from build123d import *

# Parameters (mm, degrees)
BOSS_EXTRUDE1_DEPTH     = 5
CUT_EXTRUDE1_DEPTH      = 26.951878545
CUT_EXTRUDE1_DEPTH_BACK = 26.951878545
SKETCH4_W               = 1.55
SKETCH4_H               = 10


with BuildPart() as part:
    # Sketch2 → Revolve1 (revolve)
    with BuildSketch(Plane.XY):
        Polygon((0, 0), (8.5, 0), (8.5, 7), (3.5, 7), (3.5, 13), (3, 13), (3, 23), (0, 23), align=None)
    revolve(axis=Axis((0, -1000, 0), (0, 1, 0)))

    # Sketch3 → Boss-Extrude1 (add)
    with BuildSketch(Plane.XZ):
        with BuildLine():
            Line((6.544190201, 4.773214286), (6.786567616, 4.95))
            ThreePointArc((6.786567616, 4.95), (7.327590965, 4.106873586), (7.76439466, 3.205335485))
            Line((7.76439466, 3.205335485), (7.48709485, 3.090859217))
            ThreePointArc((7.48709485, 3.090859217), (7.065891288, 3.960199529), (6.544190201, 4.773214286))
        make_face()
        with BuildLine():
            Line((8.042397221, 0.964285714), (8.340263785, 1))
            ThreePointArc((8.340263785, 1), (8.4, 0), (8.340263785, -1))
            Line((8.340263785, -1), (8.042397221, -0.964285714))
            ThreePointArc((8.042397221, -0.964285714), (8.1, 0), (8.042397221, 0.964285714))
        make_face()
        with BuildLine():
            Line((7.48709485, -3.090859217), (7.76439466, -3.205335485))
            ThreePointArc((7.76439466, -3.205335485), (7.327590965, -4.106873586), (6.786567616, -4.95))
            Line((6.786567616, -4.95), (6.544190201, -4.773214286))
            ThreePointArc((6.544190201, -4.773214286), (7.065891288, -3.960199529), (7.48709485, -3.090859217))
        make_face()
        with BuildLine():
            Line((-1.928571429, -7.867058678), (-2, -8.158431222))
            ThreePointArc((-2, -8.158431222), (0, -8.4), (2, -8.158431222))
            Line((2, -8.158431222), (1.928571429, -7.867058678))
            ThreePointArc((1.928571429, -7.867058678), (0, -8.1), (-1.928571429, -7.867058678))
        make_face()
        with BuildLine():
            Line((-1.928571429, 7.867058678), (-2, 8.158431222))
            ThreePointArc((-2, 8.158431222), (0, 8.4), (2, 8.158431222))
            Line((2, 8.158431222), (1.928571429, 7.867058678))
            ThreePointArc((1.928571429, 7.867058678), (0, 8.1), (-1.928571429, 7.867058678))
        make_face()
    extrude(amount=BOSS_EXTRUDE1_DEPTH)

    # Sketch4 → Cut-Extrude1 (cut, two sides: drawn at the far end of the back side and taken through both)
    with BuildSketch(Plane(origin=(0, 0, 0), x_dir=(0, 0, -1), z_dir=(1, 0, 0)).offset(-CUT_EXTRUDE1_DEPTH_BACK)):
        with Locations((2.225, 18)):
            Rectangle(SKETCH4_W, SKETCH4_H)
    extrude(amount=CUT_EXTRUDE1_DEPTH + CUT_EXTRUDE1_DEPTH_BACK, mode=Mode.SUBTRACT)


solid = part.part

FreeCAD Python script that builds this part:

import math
import FreeCAD as App
import Part
import Sketcher
Q = App.Units.Quantity


def add_polygon(sketch, points):
    """Adds a closed chain of lines whose ends are joined by coincident constraints."""
    first, n = sketch.GeometryCount, len(points)
    for a, b in zip(points, points[1:] + points[:1]):
        sketch.addGeometry(Part.LineSegment(App.Vector(*a, 0), App.Vector(*b, 0)), False)
    for i in range(n):
        sketch.addConstraint(Sketcher.Constraint("Coincident", first + i, 2, first + (i + 1) % n, 1))

doc = App.newDocument("Part")
body = doc.addObject("PartDesign::Body", "Body")

# Sketch on XY plane
sketch1 = body.newObject("Sketcher::SketchObject", "Sketch")
sketch1.AttachmentSupport = (doc.getObject("XY_Plane"), [""])
sketch1.MapMode = "FlatFace"
add_polygon(sketch1, [(0, 0), (8.5, 0), (8.5, 7), (3.5, 7), (3.5, 13), (3, 13), (3, 23), (0, 23)])  # lines 0-7
sketch1.addConstraint(Sketcher.Constraint("Horizontal", 0))
sketch1.addConstraint(Sketcher.Constraint("Vertical", 1))
sketch1.addConstraint(Sketcher.Constraint("Horizontal", 2))
sketch1.addConstraint(Sketcher.Constraint("Vertical", 3))
sketch1.addConstraint(Sketcher.Constraint("Horizontal", 4))
sketch1.addConstraint(Sketcher.Constraint("Vertical", 5))
sketch1.addConstraint(Sketcher.Constraint("Horizontal", 6))
sketch1.addConstraint(Sketcher.Constraint("Vertical", 7))
sketch1.addConstraint(Sketcher.Constraint("Coincident", 7, 2, -1, 1))
sketch1.addConstraint(Sketcher.Constraint("DistanceX", 2, 2, 2, 1, Q("5 mm")))
sketch1.addConstraint(Sketcher.Constraint("DistanceX", 6, 2, 6, 1, Q("3 mm")))
sketch1.addConstraint(Sketcher.Constraint("DistanceY", 1, 1, 1, 2, Q("7 mm")))
sketch1.addConstraint(Sketcher.Constraint("DistanceY", 3, 1, 3, 2, Q("6 mm")))
sketch1.addConstraint(Sketcher.Constraint("DistanceY", 5, 1, 5, 2, Q("10 mm")))
sketch1.addConstraint(Sketcher.Constraint("DistanceX", 0, 1, 0, 2, Q("8.5 mm")))
revolution = body.newObject("PartDesign::Revolution", "Revolution")
revolution.Profile = sketch1
revolution.ReferenceAxis = (sketch1, ["V_Axis"])
revolution.Angle = 360

# Sketch on XZ plane
sketch2 = body.newObject("Sketcher::SketchObject", "Sketch001")
sketch2.AttachmentSupport = (doc.getObject("XZ_Plane"), [""])
sketch2.MapMode = "FlatFace"
sketch2.addGeometry(Part.LineSegment(App.Vector(6.786568, 4.95, 0), App.Vector(6.54419, 4.773214, 0)), False)
sketch2.addGeometry(Part.ArcOfCircle(Part.Circle(App.Vector(0, 0, 0), App.Vector(0, 0, 1), 8.1), math.radians(22.432054), math.radians(36.106337)), False)
sketch2.addGeometry(Part.LineSegment(App.Vector(7.487095, 3.090859, 0), App.Vector(7.764395, 3.205335, 0)), False)
sketch2.addGeometry(Part.ArcOfCircle(Part.Circle(App.Vector(0, 0, 0), App.Vector(0, 0, 1), 8.4), math.radians(22.432054), math.radians(36.106337)), False)
sketch2.addGeometry(Part.LineSegment(App.Vector(8.340264, 1, 0), App.Vector(8.042397, 0.964286, 0)), False)
sketch2.addGeometry(Part.ArcOfCircle(Part.Circle(App.Vector(0, 0, 0), App.Vector(0, 0, 1), 8.1), math.radians(-6.837141), math.radians(6.837141)), False)
sketch2.addGeometry(Part.LineSegment(App.Vector(8.042397, -0.964286, 0), App.Vector(8.340264, -1, 0)), False)
sketch2.addGeometry(Part.ArcOfCircle(Part.Circle(App.Vector(0, 0, 0), App.Vector(0, 0, 1), 8.4), math.radians(-6.837141), math.radians(6.837141)), False)
sketch2.addGeometry(Part.LineSegment(App.Vector(7.764395, -3.205335, 0), App.Vector(7.487095, -3.090859, 0)), False)
sketch2.addGeometry(Part.ArcOfCircle(Part.Circle(App.Vector(0, 0, 0), App.Vector(0, 0, 1), 8.1), math.radians(-36.106337), math.radians(-22.432054)), False)
sketch2.addGeometry(Part.LineSegment(App.Vector(6.54419, -4.773214, 0), App.Vector(6.786568, -4.95, 0)), False)
sketch2.addGeometry(Part.ArcOfCircle(Part.Circle(App.Vector(0, 0, 0), App.Vector(0, 0, 1), 8.4), math.radians(-36.106337), math.radians(-22.432054)), False)
sketch2.addGeometry(Part.LineSegment(App.Vector(-1.928571, -7.867059, 0), App.Vector(-2, -8.158431, 0)), False)
sketch2.addGeometry(Part.ArcOfCircle(Part.Circle(App.Vector(0, 0, 0), App.Vector(0, 0, 1), 8.4), math.radians(-103.774147), math.radians(-76.225853)), False)
sketch2.addGeometry(Part.LineSegment(App.Vector(2, -8.158431, 0), App.Vector(1.928571, -7.867059, 0)), False)
sketch2.addGeometry(Part.ArcOfCircle(Part.Circle(App.Vector(0, 0, 0), App.Vector(0, 0, 1), 8.1), math.radians(-103.774147), math.radians(-76.225853)), False)
sketch2.addGeometry(Part.LineSegment(App.Vector(-2, 8.158431, 0), App.Vector(-1.928571, 7.867059, 0)), False)
sketch2.addGeometry(Part.ArcOfCircle(Part.Circle(App.Vector(0, 0, 0), App.Vector(0, 0, 1), 8.1), math.radians(76.225853), math.radians(103.774147)), False)
sketch2.addGeometry(Part.LineSegment(App.Vector(1.928571, 7.867059, 0), App.Vector(2, 8.158431, 0)), False)
sketch2.addGeometry(Part.ArcOfCircle(Part.Circle(App.Vector(0, 0, 0), App.Vector(0, 0, 1), 8.4), math.radians(76.225853), math.radians(103.774147)), False)
sketch2.addConstraint(Sketcher.Constraint("Coincident", 0, 2, 1, 2))
sketch2.addConstraint(Sketcher.Constraint("Coincident", 1, 1, 2, 1))
sketch2.addConstraint(Sketcher.Constraint("Coincident", 2, 2, 3, 1))
sketch2.addConstraint(Sketcher.Constraint("Coincident", 3, 2, 0, 1))
sketch2.addConstraint(Sketcher.Constraint("Coincident", 4, 2, 5, 2))
sketch2.addConstraint(Sketcher.Constraint("Coincident", 5, 1, 6, 1))
sketch2.addConstraint(Sketcher.Constraint("Coincident", 6, 2, 7, 1))
sketch2.addConstraint(Sketcher.Constraint("Coincident", 7, 2, 4, 1))
sketch2.addConstraint(Sketcher.Constraint("Coincident", 8, 2, 9, 2))
sketch2.addConstraint(Sketcher.Constraint("Coincident", 9, 1, 10, 1))
sketch2.addConstraint(Sketcher.Constraint("Coincident", 10, 2, 11, 1))
sketch2.addConstraint(Sketcher.Constraint("Coincident", 11, 2, 8, 1))
sketch2.addConstraint(Sketcher.Constraint("Coincident", 12, 2, 13, 1))
sketch2.addConstraint(Sketcher.Constraint("Coincident", 13, 2, 14, 1))
sketch2.addConstraint(Sketcher.Constraint("Coincident", 14, 2, 15, 2))
sketch2.addConstraint(Sketcher.Constraint("Coincident", 15, 1, 12, 1))
sketch2.addConstraint(Sketcher.Constraint("Coincident", 16, 2, 17, 2))
sketch2.addConstraint(Sketcher.Constraint("Coincident", 17, 1, 18, 1))
sketch2.addConstraint(Sketcher.Constraint("Coincident", 18, 2, 19, 1))
sketch2.addConstraint(Sketcher.Constraint("Coincident", 19, 2, 16, 1))
sketch2.addConstraint(Sketcher.Constraint("Coincident", 1, 3, -1, 1))
sketch2.addConstraint(Sketcher.Constraint("Coincident", 3, 3, -1, 1))
sketch2.addConstraint(Sketcher.Constraint("Coincident", 5, 3, -1, 1))
sketch2.addConstraint(Sketcher.Constraint("Coincident", 7, 3, -1, 1))
sketch2.addConstraint(Sketcher.Constraint("Coincident", 9, 3, -1, 1))
sketch2.addConstraint(Sketcher.Constraint("Coincident", 11, 3, -1, 1))
sketch2.addConstraint(Sketcher.Constraint("Coincident", 13, 3, -1, 1))
sketch2.addConstraint(Sketcher.Constraint("Coincident", 15, 3, -1, 1))
sketch2.addConstraint(Sketcher.Constraint("Coincident", 17, 3, -1, 1))
sketch2.addConstraint(Sketcher.Constraint("Coincident", 19, 3, -1, 1))
sketch2.addConstraint(Sketcher.Constraint("Equal", 1, 5))
sketch2.addConstraint(Sketcher.Constraint("Equal", 3, 7))
sketch2.addConstraint(Sketcher.Constraint("Equal", 5, 9))
sketch2.addConstraint(Sketcher.Constraint("Equal", 7, 11))
sketch2.addConstraint(Sketcher.Constraint("Equal", 11, 13))
sketch2.addConstraint(Sketcher.Constraint("Equal", 9, 15))
sketch2.addConstraint(Sketcher.Constraint("Equal", 15, 17))
sketch2.addConstraint(Sketcher.Constraint("Equal", 13, 19))
sketch2.addConstraint(Sketcher.Constraint("Parallel", 14, 16))
sketch2.addConstraint(Sketcher.Constraint("Parallel", 12, 18))
sketch2.addConstraint(Sketcher.Constraint("Horizontal", 12, 2, 13, 2))
sketch2.addConstraint(Sketcher.Constraint("Horizontal", 14, 2, 15, 1))
sketch2.addConstraint(Sketcher.Constraint("Horizontal", 16, 2, 17, 1))
sketch2.addConstraint(Sketcher.Constraint("Vertical", 4, 2, 5, 1))
sketch2.addConstraint(Sketcher.Constraint("Vertical", 6, 2, 7, 2))
sketch2.addConstraint(Sketcher.Constraint("Vertical", 1, 1, 8, 2))
sketch2.addConstraint(Sketcher.Constraint("Vertical", 0, 2, 9, 1))
sketch2.addConstraint(Sketcher.Constraint("Vertical", 3, 2, 10, 2))
sketch2.addConstraint(Sketcher.Constraint("Vertical", 2, 2, 11, 2))
sketch2.addConstraint(Sketcher.Constraint("Vertical", 15, 1, 16, 2))
sketch2.addConstraint(Sketcher.Constraint("Radius", 1, Q("8.1 mm")))
sketch2.addConstraint(Sketcher.Constraint("Radius", 3, Q("8.4 mm")))
sketch2.addConstraint(Sketcher.Constraint("DistanceY", 6, 2, -1, 1, Q("1 mm")))
sketch2.addConstraint(Sketcher.Constraint("DistanceX", 12, 2, -1, 1, Q("2 mm")))
sketch2.addConstraint(Sketcher.Constraint("DistanceY", -1, 1, 3, 2, Q("4.95 mm")))
sketch2.addConstraint(Sketcher.Constraint("DistanceX", 1, 1, 2, 2, Q("0.2773 mm")))
sketch2.addConstraint(Sketcher.Constraint("DistanceY", 5, 1, 0, 2, Q("5.7375 mm")))
sketch2.addConstraint(Sketcher.Constraint("DistanceY", 14, 2, 8, 2, Q("4.776199 mm")))
sketch2.addConstraint(Sketcher.Constraint("DistanceX", -1, 1, 0, 2, Q("6.54419 mm")))
sketch2.addConstraint(Sketcher.Constraint("DistanceY", -1, 1, 1, 1, Q("3.090859 mm")))
pad1 = body.newObject("PartDesign::Pad", "Pad")
pad1.Profile = sketch2
pad1.Length = 5

# Sketch on YZ plane
sketch3 = body.newObject("Sketcher::SketchObject", "Sketch002")
sketch3.AttachmentSupport = (doc.getObject("YZ_Plane"), [""])
sketch3.MapMode = "FlatFace"
add_polygon(sketch3, [(23, -1.45), (13, -1.45), (13, -3), (23, -3)])  # lines 0-3
sketch3.addConstraint(Sketcher.Constraint("Horizontal", 0))
sketch3.addConstraint(Sketcher.Constraint("Vertical", 1))
sketch3.addConstraint(Sketcher.Constraint("Horizontal", 2))
sketch3.addConstraint(Sketcher.Constraint("Vertical", 3))
sketch3.addConstraint(Sketcher.Constraint("DistanceX", 0, 2, 0, 1, Q("10 mm")))
sketch3.addConstraint(Sketcher.Constraint("DistanceX", -1, 1, 0, 2, Q("13 mm")))
sketch3.addConstraint(Sketcher.Constraint("DistanceY", 1, 2, -1, 1, Q("3 mm")))
sketch3.addConstraint(Sketcher.Constraint("DistanceY", 1, 2, 1, 1, Q("1.55 mm")))
pocket1 = body.newObject("PartDesign::Pocket", "Pocket")
pocket1.Profile = sketch3
pocket1.Type = "ThroughAll"
pocket1.Midplane = True

doc.recompute()
